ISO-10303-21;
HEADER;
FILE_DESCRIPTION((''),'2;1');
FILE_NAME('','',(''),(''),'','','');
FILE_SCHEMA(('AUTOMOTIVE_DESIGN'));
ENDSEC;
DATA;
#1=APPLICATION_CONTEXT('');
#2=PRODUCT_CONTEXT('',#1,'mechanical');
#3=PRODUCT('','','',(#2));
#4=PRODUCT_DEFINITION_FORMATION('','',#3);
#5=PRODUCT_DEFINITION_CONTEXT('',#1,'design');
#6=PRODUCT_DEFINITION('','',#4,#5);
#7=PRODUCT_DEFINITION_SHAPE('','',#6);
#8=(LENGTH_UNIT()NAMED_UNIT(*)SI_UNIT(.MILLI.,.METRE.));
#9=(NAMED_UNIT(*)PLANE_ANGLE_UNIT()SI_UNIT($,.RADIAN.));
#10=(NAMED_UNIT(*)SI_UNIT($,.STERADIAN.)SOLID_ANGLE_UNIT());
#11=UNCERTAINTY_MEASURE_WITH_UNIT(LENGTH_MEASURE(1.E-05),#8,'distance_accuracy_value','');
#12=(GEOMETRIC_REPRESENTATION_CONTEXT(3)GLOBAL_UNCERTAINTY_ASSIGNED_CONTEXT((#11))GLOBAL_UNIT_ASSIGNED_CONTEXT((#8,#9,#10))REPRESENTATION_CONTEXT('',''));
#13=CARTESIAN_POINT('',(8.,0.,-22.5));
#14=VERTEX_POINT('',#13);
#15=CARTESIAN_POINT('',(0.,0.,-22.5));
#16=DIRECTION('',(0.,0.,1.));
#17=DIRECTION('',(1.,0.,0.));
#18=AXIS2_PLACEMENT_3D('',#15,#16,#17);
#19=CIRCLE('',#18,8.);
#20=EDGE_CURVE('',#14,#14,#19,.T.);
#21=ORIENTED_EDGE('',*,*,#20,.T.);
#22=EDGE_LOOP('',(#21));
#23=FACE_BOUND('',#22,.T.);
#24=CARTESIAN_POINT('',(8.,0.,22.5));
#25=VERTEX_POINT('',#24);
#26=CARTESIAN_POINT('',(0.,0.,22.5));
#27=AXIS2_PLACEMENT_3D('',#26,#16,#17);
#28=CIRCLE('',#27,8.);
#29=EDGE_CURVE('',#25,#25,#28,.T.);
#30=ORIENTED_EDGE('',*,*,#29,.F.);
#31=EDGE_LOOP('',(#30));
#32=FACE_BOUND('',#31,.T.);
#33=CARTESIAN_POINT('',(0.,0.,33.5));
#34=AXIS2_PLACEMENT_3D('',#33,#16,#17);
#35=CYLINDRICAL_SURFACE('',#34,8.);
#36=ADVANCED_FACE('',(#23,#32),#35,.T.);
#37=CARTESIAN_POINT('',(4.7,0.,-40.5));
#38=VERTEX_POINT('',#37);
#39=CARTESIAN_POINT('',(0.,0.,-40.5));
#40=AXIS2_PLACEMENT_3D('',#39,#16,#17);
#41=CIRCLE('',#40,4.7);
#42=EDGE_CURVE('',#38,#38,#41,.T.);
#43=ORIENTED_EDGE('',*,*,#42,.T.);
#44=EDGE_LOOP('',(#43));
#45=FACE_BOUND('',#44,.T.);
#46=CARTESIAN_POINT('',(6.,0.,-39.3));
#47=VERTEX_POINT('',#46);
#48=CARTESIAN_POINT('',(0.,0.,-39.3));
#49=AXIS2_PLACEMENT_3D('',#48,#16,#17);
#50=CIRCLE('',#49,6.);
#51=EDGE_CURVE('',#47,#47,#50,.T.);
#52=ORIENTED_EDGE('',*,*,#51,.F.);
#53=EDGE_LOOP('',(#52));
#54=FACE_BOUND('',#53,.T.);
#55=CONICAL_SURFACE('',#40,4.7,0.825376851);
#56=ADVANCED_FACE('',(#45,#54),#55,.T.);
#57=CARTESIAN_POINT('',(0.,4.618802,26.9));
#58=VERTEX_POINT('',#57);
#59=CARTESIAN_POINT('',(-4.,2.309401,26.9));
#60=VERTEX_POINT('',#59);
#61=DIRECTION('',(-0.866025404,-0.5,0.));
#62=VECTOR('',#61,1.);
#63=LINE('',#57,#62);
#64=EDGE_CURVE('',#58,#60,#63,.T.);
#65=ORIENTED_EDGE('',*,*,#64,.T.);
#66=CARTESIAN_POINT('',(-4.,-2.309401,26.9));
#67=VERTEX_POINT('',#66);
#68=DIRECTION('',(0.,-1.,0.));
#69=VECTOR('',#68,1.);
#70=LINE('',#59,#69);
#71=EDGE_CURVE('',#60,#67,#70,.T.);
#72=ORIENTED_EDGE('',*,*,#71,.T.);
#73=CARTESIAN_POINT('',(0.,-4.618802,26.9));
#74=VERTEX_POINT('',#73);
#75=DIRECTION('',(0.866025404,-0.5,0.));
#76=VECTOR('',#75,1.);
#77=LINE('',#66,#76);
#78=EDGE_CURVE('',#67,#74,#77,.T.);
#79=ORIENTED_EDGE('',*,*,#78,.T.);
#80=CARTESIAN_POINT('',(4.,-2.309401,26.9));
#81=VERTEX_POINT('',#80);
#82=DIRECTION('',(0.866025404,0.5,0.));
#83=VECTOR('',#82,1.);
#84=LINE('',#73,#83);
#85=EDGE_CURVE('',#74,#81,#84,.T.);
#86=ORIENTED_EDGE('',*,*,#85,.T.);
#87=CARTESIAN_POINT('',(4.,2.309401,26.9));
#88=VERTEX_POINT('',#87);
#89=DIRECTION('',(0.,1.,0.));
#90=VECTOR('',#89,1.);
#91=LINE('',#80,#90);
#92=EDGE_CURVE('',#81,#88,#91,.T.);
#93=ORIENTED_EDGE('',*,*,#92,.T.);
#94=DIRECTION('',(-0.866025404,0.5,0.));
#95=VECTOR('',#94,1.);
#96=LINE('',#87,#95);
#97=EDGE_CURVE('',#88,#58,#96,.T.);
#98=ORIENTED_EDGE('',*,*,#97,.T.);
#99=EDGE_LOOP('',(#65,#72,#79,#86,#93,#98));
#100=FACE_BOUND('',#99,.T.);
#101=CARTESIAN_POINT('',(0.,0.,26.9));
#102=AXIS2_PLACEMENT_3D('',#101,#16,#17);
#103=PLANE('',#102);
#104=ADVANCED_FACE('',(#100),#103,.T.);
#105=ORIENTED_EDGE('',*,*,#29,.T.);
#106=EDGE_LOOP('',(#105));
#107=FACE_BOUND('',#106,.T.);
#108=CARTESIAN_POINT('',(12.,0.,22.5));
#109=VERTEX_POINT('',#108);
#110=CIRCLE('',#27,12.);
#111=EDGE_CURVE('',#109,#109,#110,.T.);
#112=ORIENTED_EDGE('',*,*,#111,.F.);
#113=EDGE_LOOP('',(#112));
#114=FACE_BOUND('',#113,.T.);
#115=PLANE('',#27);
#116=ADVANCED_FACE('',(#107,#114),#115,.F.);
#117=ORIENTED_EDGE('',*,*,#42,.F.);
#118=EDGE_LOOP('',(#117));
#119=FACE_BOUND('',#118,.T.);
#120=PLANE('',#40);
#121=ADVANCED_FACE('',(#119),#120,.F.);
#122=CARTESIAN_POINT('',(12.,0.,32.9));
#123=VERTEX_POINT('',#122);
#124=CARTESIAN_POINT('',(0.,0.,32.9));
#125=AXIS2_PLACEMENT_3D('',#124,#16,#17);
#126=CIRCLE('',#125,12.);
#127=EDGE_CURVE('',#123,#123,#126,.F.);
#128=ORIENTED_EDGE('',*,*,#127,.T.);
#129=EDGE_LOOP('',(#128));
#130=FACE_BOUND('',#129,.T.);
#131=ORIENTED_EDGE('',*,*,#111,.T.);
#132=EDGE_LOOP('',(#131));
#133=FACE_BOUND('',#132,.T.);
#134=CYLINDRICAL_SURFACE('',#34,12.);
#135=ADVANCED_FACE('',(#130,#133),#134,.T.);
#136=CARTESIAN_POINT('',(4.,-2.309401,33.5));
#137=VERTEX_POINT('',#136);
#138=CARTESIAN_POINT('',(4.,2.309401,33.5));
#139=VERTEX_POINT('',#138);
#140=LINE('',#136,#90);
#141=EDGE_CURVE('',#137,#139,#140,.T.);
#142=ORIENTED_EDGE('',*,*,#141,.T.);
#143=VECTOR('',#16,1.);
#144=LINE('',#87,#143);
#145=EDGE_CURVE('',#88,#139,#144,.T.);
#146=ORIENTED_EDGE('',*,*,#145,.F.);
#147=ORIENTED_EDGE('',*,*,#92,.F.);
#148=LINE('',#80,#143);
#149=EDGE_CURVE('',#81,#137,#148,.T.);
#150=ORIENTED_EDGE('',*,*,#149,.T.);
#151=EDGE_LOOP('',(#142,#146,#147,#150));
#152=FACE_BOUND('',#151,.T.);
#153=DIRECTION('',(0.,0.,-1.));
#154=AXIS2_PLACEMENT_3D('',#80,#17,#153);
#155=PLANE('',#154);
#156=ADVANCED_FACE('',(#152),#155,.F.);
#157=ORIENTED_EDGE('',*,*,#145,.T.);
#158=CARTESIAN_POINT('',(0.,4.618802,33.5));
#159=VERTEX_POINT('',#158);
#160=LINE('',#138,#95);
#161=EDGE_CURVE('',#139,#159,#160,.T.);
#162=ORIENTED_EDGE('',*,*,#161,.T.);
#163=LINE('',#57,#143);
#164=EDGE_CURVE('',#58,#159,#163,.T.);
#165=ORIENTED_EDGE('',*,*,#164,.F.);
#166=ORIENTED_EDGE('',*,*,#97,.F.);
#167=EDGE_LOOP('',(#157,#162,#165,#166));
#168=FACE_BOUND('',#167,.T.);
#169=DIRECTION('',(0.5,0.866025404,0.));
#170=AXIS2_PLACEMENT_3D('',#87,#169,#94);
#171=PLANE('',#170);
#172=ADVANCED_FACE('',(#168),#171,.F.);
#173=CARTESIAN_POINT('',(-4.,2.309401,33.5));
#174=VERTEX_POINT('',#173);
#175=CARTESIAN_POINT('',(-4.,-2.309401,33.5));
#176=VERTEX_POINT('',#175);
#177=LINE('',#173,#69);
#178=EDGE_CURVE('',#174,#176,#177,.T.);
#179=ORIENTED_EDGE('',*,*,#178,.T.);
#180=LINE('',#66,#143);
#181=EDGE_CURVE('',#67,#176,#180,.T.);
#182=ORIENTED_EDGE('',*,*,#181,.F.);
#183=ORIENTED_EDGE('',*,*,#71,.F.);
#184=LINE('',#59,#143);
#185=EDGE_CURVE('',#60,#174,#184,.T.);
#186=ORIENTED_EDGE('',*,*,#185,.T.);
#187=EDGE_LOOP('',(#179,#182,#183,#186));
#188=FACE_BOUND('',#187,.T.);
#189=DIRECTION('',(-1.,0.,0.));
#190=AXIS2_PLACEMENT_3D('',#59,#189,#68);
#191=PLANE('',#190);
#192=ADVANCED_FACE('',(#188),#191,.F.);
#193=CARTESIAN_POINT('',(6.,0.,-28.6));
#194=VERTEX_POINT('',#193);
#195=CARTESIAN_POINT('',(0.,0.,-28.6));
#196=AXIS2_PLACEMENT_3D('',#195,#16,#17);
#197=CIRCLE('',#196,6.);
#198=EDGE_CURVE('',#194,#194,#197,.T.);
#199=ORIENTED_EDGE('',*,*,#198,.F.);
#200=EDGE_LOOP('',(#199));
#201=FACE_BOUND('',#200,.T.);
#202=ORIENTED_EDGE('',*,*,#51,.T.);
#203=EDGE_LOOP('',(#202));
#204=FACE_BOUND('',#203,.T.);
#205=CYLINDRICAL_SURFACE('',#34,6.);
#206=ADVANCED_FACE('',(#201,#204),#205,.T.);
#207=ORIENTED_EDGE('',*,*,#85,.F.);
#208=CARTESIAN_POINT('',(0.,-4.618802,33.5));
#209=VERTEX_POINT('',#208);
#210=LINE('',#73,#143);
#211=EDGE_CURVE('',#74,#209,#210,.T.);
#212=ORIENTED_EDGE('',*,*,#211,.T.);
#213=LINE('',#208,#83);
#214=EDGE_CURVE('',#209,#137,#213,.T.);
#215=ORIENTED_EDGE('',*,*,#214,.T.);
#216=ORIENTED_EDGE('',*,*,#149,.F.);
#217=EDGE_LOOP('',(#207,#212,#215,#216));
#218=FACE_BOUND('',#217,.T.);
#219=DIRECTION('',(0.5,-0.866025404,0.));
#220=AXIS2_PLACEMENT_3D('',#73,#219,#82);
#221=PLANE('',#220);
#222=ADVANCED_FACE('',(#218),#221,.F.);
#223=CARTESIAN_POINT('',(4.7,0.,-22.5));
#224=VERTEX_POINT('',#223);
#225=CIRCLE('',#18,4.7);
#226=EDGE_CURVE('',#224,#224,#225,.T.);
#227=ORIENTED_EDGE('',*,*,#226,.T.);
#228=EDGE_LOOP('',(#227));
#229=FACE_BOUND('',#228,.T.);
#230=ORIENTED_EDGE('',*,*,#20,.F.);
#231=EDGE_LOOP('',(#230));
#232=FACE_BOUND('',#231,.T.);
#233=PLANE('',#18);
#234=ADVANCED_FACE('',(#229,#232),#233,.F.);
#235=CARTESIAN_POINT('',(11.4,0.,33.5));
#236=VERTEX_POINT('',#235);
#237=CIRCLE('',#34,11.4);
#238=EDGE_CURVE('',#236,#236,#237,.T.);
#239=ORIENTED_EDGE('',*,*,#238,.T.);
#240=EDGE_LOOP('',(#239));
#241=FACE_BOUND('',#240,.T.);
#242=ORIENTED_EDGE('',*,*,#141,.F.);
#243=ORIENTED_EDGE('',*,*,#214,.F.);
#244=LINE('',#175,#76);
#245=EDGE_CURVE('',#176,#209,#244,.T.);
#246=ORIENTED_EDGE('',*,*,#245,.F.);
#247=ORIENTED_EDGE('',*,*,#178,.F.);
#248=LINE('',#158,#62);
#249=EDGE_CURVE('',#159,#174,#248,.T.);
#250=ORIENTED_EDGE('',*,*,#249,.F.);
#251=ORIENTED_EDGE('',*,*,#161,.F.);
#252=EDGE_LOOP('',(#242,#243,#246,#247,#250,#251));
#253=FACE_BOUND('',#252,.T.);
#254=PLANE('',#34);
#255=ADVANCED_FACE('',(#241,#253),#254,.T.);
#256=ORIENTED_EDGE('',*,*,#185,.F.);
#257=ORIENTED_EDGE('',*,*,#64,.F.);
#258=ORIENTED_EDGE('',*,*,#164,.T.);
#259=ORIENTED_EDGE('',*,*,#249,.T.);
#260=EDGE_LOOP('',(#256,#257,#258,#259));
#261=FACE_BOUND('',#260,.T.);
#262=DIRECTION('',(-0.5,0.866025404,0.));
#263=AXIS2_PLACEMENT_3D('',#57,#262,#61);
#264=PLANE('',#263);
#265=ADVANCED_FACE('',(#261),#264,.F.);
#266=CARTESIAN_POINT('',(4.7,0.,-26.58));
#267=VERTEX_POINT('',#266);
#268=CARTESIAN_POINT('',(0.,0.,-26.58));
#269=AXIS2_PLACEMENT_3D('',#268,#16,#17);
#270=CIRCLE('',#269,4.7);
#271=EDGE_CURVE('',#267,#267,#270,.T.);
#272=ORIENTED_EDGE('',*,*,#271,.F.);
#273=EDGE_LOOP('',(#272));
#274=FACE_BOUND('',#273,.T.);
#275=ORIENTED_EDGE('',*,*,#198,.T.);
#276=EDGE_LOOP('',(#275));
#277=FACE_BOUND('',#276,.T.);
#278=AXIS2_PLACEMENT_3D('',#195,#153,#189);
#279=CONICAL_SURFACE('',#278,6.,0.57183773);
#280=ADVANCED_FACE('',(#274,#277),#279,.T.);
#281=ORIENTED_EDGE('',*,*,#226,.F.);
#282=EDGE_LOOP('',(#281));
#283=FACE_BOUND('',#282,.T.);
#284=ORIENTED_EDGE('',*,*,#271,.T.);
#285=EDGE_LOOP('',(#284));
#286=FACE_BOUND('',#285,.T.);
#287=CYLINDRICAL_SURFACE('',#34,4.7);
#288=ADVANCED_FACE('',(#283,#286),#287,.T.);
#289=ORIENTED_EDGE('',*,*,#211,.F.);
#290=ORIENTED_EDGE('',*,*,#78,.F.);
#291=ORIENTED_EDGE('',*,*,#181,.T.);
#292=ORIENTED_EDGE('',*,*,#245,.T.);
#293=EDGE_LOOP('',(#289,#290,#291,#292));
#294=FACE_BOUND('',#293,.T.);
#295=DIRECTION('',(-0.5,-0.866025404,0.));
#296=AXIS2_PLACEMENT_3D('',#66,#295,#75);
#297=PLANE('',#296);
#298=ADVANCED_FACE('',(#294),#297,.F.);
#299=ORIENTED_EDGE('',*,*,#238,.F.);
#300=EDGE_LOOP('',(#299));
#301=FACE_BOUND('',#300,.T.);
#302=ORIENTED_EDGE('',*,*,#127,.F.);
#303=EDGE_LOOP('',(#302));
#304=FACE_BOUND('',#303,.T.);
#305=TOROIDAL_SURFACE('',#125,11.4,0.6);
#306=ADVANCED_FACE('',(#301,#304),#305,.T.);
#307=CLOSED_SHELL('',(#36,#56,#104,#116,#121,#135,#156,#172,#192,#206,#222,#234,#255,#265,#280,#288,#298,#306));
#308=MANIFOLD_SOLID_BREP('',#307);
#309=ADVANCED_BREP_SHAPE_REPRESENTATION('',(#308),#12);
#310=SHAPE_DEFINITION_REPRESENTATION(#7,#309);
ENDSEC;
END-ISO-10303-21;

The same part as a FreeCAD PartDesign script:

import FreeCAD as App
import Part
import Sketcher

V = App.Vector
Q = App.Units.Quantity


def edges_at(feature, points):
    """Names of the edges that pass closest to the given points."""
    edges = feature.Shape.Edges
    near = lambda p: min(range(len(edges)), key=lambda i: edges[i].distToShape(Part.Vertex(*p))[0])
    return sorted({f"Edge{near(p) + 1}" for p in points})


def add_polygon(sketch, points):
    """Adds a closed chain of lines whose ends are joined by coincident constraints."""
    first, n = sketch.GeometryCount, len(points)
    for a, b in zip(points, points[1:] + points[:1]):
        sketch.addGeometry(Part.LineSegment(App.Vector(*a, 0), App.Vector(*b, 0)), False)
    for i in range(n):
        sketch.addConstraint(Sketcher.Constraint("Coincident", first + i, 2, first + (i + 1) % n, 1))

doc = App.newDocument("Part")
params = doc.addObject("Spreadsheet::Sheet", "Params")
for row, (alias, value) in enumerate([
    ("sketch1_width", "4 mm"),
    ("sketch1_width2", "12 mm"),
    ("sketch1_height", "74 mm"),
    ("sketch1_height2", "45 mm"),
    ("sketch1_height3", "11 mm"),
    ("revolution_angle", "360 deg"),
    ("pocket1_length", "6.6 mm"),
    ("fillet_radius", "0.6 mm"),
], start=1):
    params.set(f"A{row}", alias)
    params.set(f"B{row}", "=" + value)
    params.setAlias(f"B{row}", alias)

body = doc.addObject("PartDesign::Body", "Body")

# Sketch on XZ plane
sketch1 = doc.addObject("Sketcher::SketchObject", "Sketch")
body.addObject(sketch1)
sketch1.AttachmentSupport = (doc.XZ_Plane, [""])
sketch1.MapMode = "FlatFace"
add_polygon(sketch1, [(0, 33.5), (0, -40.5), (-4.7, -40.5), (-6, -39.3), (-6, -28.6), (-4.7, -26.6), (-4.7, -22.5), (-8, -22.5), (-8, 22.5), (-12, 22.5), (-12, 33.5)])  # lines 0-10
sketch1.addConstraint([
    Sketcher.Constraint("Vertical", 0),
    Sketcher.Constraint("Horizontal", 1),
    Sketcher.Constraint("Vertical", 3),
    Sketcher.Constraint("Vertical", 5),
    Sketcher.Constraint("Horizontal", 6),
    Sketcher.Constraint("Vertical", 7),
    Sketcher.Constraint("Horizontal", 8),
    Sketcher.Constraint("Vertical", 9),
    Sketcher.Constraint("Horizontal", 10),
    Sketcher.Constraint("PointOnObject", 0, 2, -2),
    Sketcher.Constraint("Vertical", 1, 2, 4, 2),
    Sketcher.Constraint("DistanceX", 8, 2, 8, 1, 4.0),
    Sketcher.Constraint("DistanceX", 10, 1, 10, 2, 12.0),
    Sketcher.Constraint("DistanceY", 0, 2, 0, 1, 74.0),
    Sketcher.Constraint("DistanceY", 7, 1, 7, 2, 45.0),
    Sketcher.Constraint("DistanceY", 9, 1, 9, 2, 11.0),
    Sketcher.Constraint("DistanceX", 1, 2, 1, 1, 4.7),
    Sketcher.Constraint("DistanceY", 3, 1, 3, 2, 10.7),
    Sketcher.Constraint("DistanceX", 2, 2, -1, 1, 6.0),
    Sketcher.Constraint("DistanceY", 5, 1, 5, 2, 4.08),
    Sketcher.Constraint("DistanceY", 0, 2, -1, 1, 40.5),
    Sketcher.Constraint("DistanceY", 2, 2, -1, 1, 39.3),
])
sketch1.setExpression("Constraints[22]", "Params.sketch1_width")
sketch1.setExpression("Constraints[23]", "Params.sketch1_width2")
sketch1.setExpression("Constraints[24]", "Params.sketch1_height")
sketch1.setExpression("Constraints[25]", "Params.sketch1_height2")
sketch1.setExpression("Constraints[26]", "Params.sketch1_height3")
revolution = doc.addObject("PartDesign::Revolution", "Revolution")
body.addObject(revolution)
revolution.Profile = sketch1
revolution.ReferenceAxis = (sketch1, ["V_Axis"])
revolution.setExpression("Angle", "Params.revolution_angle")

# Sketch on XY plane
sketch2 = doc.addObject("Sketcher::SketchObject", "Sketch001")
body.addObject(sketch2)
sketch2.AttachmentSupport = (doc.XY_Plane, [""])
sketch2.MapMode = "FlatFace"
sketch2.AttachmentOffset = App.Placement(V(0, 0, 33.5), App.Rotation())
add_polygon(sketch2, [(4, 2.3), (0, 4.6), (-4, 2.3), (-4, -2.3), (0, -4.6), (4, -2.3)])  # lines 0-5
sketch2.addConstraint([
    Sketcher.Constraint("Vertical", 2),
    Sketcher.Constraint("Vertical", 5),
    Sketcher.Constraint("Symmetric", 0, 2, 3, 2, -1, 1),
    Sketcher.Constraint("Symmetric", 1, 2, 4, 2, -1, 1),
    Sketcher.Constraint("PointOnObject", 0, 2, -2),
    Sketcher.Constraint("Parallel", 0, 3),
    Sketcher.Constraint("Horizontal", 2, 2, 4, 2),
    Sketcher.Constraint("Angle", 0, Q("150 deg")),
    Sketcher.Constraint("DistanceX", 1, 2, -1, 1, 4.0),
    Sketcher.Constraint("DistanceY", -1, 1, 1, 2, 2.309401),
])
pocket1 = doc.addObject("PartDesign::Pocket", "Pocket")
body.addObject(pocket1)
pocket1.Profile = sketch2
pocket1.setExpression("Length", "Params.pocket1_length")
doc.recompute()

fillet = doc.addObject("PartDesign::Fillet", "Fillet")
body.addObject(fillet)
fillet.Base = (pocket1, edges_at(pocket1, [(-12, 0, 33.5)]))
fillet.setExpression("Radius", "Params.fillet_radius")

doc.recompute()
